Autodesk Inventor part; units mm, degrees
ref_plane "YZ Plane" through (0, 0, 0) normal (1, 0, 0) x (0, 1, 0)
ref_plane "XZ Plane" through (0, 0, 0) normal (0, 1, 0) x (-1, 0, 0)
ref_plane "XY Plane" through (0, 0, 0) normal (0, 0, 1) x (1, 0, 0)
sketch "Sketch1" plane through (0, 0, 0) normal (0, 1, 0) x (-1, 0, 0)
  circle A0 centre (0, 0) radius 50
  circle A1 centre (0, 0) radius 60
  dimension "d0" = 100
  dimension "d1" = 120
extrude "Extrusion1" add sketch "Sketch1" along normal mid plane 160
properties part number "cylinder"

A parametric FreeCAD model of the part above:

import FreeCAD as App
import Part
import Sketcher

V = App.Vector
Q = App.Units.Quantity

doc = App.newDocument("Part")
params = doc.addObject("Spreadsheet::Sheet", "Params")
for row, (alias, value) in enumerate([
    ("sketch1_diameter", "3.937 in"),
    ("pad1_length", "160 mm"),
], start=1):
    params.set(f"A{row}", alias)
    params.set(f"B{row}", "=" + value)
    params.setAlias(f"B{row}", alias)

body = doc.addObject("PartDesign::Body", "Body")

# Sketch on XZ plane
sketch1 = body.newObject("Sketcher::SketchObject", "Sketch")
sketch1.AttachmentSupport = (doc.getObject("XZ_Plane"), [""])
sketch1.MapMode = "FlatFace"
sketch1.addGeometry([
    Part.Circle(V(0, 0, 0), V(0, 0, 1), 60),
    Part.Circle(V(0, 0, 0), V(0, 0, 1), 50),
], False)
sketch1.addConstraint([
    Sketcher.Constraint("Coincident", 0, 3, -1, 1),
    Sketcher.Constraint("Coincident", 1, 3, -1, 1),
    Sketcher.Constraint("Diameter", 1, Q("3.937 in")),
    Sketcher.Constraint("Diameter", 0, Q("4.7244 in")),
])
sketch1.setExpression("Constraints[2]", "Params.sketch1_diameter")
pad1 = body.newObject("PartDesign::Pad", "Pad")
pad1.Profile = sketch1
pad1.setExpression("Length", "Params.pad1_length")
pad1.Midplane = True

doc.recompute()
